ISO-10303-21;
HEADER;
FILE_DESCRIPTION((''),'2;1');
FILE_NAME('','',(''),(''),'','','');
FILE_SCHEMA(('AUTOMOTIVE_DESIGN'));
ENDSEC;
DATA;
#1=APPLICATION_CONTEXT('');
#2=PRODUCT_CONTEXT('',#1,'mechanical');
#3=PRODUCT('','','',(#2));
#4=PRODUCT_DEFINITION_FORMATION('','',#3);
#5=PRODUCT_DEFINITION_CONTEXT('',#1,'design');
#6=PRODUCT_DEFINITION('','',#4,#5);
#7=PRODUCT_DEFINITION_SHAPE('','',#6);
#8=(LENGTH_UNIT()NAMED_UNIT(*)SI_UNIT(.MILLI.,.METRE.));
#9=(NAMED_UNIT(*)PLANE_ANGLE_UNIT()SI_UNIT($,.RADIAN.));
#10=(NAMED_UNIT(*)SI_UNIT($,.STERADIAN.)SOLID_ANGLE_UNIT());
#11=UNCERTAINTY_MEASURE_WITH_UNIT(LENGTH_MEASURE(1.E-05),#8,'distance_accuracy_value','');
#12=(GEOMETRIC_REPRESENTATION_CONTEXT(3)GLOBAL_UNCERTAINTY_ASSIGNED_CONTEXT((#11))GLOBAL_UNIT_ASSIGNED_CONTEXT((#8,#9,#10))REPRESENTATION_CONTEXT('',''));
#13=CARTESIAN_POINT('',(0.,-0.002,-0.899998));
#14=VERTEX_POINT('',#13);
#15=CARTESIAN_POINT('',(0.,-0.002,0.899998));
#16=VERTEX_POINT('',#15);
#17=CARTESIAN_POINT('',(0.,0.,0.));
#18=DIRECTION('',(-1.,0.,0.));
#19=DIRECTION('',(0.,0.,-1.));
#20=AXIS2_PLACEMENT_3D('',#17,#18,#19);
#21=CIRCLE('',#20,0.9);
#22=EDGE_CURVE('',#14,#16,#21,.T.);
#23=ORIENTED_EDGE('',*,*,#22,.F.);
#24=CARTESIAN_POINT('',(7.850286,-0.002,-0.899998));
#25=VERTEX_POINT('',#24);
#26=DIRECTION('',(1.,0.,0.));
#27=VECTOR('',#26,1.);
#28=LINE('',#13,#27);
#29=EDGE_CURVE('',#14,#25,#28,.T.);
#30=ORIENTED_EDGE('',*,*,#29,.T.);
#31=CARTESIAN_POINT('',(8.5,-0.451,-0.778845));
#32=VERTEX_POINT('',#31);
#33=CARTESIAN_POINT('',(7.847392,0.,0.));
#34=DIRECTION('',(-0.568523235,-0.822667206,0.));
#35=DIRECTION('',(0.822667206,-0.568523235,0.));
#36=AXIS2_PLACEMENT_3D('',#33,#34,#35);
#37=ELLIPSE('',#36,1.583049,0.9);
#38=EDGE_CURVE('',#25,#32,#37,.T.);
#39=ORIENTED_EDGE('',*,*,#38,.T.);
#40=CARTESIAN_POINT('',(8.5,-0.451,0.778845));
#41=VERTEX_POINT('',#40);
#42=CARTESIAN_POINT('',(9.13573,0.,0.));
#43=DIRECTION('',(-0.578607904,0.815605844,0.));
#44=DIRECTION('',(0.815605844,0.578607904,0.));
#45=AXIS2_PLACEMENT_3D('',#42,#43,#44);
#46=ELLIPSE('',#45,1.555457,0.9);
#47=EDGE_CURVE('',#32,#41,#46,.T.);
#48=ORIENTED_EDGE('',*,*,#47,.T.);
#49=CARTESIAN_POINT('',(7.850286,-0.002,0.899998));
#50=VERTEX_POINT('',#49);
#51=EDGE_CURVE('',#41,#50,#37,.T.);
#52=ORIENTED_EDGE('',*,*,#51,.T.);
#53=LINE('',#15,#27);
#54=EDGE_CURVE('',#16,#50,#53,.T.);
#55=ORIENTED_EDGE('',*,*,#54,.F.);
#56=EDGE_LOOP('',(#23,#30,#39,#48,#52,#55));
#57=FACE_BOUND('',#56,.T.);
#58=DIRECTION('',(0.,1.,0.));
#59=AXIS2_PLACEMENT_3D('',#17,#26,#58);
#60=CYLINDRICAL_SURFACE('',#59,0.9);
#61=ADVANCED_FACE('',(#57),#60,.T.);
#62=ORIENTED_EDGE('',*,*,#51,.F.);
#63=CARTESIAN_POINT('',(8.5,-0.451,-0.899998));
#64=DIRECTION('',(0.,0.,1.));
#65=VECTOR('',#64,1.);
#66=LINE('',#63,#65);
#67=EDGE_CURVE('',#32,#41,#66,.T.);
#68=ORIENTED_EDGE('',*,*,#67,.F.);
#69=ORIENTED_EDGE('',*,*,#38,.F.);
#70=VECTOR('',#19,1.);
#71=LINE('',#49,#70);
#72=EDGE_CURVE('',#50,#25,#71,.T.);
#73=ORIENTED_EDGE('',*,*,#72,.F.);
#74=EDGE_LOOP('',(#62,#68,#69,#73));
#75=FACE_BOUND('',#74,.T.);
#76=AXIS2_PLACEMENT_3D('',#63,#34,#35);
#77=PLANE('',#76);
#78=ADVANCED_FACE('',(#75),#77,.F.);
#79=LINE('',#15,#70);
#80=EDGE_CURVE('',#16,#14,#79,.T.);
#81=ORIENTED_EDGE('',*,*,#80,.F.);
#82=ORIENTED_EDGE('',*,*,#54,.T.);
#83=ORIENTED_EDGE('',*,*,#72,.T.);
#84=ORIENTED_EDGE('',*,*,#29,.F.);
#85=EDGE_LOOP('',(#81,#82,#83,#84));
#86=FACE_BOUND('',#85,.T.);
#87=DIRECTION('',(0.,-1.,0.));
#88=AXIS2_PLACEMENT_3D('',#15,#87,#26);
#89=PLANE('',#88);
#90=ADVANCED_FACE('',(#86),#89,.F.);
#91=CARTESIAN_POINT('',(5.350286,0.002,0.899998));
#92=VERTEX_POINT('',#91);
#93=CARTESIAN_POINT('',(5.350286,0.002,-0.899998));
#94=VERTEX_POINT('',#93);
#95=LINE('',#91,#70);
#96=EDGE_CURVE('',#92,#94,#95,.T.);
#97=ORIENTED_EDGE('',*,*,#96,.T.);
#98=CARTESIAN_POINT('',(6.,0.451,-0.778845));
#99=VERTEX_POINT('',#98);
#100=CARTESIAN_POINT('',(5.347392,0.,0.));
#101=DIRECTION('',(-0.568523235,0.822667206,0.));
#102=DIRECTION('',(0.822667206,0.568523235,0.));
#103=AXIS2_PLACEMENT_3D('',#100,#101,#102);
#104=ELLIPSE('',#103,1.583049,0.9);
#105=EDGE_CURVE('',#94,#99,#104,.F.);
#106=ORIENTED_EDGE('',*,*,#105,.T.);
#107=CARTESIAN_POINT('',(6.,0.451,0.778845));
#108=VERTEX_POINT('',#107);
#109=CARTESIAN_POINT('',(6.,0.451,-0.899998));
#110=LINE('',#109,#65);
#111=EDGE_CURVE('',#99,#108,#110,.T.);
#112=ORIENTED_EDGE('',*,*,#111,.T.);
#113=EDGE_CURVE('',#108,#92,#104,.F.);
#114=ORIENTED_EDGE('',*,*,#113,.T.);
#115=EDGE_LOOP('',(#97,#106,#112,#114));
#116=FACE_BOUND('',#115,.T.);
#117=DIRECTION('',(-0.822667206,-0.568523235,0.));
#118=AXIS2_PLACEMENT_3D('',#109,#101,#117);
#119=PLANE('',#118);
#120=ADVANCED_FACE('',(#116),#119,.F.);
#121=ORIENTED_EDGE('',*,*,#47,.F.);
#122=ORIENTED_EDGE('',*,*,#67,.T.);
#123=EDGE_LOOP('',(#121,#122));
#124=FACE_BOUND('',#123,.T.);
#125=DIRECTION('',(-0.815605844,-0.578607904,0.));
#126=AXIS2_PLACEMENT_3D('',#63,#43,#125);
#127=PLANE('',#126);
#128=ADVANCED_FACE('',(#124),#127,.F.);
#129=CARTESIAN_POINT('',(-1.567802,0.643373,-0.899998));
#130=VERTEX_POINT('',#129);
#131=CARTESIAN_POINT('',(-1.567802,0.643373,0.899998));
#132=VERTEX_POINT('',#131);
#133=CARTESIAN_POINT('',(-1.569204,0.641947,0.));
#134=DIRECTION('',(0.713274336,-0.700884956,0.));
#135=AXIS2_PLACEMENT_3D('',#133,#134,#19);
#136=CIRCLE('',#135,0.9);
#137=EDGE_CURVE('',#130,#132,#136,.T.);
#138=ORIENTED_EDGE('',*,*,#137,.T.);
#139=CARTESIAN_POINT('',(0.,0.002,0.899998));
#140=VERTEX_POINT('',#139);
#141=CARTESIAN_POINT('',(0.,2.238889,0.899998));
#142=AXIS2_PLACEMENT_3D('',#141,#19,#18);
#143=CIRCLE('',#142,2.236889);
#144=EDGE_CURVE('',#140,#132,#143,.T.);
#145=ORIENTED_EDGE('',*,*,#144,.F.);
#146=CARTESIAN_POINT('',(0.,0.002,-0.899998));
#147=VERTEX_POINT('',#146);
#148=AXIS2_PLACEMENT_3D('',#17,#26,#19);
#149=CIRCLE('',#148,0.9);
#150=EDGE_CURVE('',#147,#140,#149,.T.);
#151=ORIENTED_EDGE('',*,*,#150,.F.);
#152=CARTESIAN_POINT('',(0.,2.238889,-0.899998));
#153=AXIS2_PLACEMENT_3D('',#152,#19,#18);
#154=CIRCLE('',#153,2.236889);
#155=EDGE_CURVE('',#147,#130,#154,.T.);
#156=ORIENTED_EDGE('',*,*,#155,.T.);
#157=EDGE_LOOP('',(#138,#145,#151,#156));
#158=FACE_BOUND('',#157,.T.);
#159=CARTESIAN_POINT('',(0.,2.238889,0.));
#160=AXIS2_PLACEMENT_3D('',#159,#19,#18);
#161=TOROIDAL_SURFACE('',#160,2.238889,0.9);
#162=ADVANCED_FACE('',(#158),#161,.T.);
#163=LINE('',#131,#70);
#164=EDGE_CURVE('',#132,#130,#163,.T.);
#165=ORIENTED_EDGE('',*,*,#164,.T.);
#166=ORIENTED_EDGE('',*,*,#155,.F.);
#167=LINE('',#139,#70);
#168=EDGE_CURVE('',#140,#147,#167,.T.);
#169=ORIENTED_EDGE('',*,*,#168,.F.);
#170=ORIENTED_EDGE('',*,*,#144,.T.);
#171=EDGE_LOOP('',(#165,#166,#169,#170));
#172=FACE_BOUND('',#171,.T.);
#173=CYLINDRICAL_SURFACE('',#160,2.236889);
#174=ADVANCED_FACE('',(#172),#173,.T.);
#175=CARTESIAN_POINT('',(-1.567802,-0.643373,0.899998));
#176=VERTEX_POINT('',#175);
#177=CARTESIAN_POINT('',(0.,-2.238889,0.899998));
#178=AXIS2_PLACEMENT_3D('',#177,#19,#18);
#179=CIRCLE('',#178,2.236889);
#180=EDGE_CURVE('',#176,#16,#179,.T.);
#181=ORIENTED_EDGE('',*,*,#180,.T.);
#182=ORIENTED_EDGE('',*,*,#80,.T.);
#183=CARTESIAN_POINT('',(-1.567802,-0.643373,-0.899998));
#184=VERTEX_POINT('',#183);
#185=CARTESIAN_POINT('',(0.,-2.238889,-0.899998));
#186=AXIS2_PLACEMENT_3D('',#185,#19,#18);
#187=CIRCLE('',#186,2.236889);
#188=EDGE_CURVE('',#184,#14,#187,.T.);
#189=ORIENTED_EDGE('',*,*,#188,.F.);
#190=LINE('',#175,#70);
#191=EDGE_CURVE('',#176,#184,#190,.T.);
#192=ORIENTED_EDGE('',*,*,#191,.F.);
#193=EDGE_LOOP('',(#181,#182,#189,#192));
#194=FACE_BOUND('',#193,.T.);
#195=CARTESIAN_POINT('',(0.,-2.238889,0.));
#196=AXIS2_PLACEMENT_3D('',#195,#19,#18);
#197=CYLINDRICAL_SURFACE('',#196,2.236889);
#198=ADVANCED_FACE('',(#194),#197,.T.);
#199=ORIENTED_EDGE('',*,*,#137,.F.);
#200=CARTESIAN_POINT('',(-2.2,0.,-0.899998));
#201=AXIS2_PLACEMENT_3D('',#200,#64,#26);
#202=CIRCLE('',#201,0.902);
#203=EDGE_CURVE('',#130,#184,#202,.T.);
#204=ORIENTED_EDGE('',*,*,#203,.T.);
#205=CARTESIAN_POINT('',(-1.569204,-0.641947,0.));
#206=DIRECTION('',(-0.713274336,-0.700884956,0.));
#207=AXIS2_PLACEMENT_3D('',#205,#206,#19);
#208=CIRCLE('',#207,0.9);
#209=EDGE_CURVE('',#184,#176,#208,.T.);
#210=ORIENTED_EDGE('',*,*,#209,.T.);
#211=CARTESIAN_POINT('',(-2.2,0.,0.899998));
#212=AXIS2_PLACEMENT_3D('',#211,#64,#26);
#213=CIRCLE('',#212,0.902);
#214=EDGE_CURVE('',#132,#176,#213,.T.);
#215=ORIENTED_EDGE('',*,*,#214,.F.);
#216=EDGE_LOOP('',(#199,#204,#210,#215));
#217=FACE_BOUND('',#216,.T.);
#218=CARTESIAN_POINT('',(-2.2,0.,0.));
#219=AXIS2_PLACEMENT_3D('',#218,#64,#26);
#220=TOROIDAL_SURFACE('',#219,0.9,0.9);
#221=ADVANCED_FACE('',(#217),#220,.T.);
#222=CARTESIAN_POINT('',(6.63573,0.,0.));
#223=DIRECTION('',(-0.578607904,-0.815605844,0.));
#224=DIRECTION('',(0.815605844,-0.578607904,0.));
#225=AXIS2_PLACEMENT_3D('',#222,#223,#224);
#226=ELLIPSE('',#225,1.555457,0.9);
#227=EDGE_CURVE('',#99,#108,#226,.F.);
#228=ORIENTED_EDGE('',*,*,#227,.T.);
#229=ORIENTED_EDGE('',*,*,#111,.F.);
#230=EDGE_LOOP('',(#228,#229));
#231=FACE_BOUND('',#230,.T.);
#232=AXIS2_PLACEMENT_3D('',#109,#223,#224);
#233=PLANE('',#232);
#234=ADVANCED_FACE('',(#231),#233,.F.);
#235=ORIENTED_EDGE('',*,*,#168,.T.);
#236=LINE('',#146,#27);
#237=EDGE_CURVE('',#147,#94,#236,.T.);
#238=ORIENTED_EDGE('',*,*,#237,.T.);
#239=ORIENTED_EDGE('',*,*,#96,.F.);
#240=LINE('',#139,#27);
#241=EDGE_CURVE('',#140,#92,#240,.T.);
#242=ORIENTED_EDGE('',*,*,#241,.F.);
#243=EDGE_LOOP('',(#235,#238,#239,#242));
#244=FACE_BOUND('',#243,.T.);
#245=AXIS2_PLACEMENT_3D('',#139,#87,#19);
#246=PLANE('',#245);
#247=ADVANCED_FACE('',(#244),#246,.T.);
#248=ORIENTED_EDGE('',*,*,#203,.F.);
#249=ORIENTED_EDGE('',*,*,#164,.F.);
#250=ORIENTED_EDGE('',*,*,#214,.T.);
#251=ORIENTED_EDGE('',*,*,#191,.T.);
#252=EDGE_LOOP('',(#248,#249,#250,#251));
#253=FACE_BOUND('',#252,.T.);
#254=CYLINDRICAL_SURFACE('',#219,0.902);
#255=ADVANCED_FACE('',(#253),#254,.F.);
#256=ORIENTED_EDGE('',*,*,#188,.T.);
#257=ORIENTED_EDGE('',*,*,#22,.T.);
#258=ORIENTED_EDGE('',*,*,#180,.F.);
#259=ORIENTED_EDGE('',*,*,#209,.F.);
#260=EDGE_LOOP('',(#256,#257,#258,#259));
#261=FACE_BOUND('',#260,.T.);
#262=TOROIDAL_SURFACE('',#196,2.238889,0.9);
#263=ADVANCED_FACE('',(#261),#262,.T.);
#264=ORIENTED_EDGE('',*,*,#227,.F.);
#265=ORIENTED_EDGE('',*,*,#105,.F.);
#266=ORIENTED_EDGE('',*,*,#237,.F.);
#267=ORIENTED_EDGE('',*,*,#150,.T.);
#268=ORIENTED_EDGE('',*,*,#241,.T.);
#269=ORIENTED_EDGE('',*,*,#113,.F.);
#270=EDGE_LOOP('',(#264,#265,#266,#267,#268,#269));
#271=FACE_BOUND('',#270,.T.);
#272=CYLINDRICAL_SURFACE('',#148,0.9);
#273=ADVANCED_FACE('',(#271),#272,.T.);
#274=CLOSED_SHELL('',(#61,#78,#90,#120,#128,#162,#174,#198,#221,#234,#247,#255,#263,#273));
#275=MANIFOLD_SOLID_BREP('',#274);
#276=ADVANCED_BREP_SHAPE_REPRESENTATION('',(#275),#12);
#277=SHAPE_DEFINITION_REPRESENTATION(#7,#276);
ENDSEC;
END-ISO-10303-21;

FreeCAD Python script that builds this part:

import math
import FreeCAD as App
import Part
import Sketcher

V = App.Vector


def add_polygon(sketch, points):
    """Adds a closed chain of lines whose ends are joined by coincident constraints."""
    first, n = sketch.GeometryCount, len(points)
    for a, b in zip(points, points[1:] + points[:1]):
        sketch.addGeometry(Part.LineSegment(App.Vector(*a, 0), App.Vector(*b, 0)), False)
    for i in range(n):
        sketch.addConstraint(Sketcher.Constraint("Coincident", first + i, 2, first + (i + 1) % n, 1))

doc = App.newDocument("Part")
params = doc.addObject("Spreadsheet::Sheet", "Params")
for row, (alias, value) in enumerate([
    ("sketch1_radius", "0.9 mm"),
    ("sketch2_radius", "1.8 mm"),
    ("sketch2_width", "6 mm"),
    ("sketch2_width2", "8.5 mm"),
    ("sketch3_width", "2.5 mm"),
    ("sketch3_height", "1.82 mm"),
], start=1):
    params.set(f"A{row}", alias)
    params.set(f"B{row}", "=" + value)
    params.setAlias(f"B{row}", alias)

body = doc.addObject("PartDesign::Body", "Body")

# Sketch on YZ plane
sketch1 = body.newObject("Sketcher::SketchObject", "Sketch")
sketch1.AttachmentSupport = (doc.getObject("YZ_Plane"), [""])
sketch1.MapMode = "FlatFace"
sketch1.AttachmentOffset = App.Placement(V(0, 0, 6), App.Rotation())
sketch1.addGeometry(Part.LineSegment(V(0.002, 0.899998, 0), V(0.002, -0.899998, 0)), False)
sketch1.addGeometry(Part.ArcOfCircle(Part.Circle(V(0, 0, 0), V(0, 0, 1), 0.9), math.radians(-89.872676), math.radians(89.872676)), False)
sketch1.addConstraint(Sketcher.Constraint("Coincident", 0, 1, 1, 2))
sketch1.addConstraint(Sketcher.Constraint("Coincident", 1, 1, 0, 2))
sketch1.addConstraint(Sketcher.Constraint("Vertical", 0))
sketch1.addConstraint(Sketcher.Constraint("Coincident", 1, 3, -1, 1))
sketch1.addConstraint(Sketcher.Constraint("Radius", 1, 0.9))
sketch1.addConstraint(Sketcher.Constraint("DistanceX", -1, 1, 0, 1, 0.002))
sketch1.setExpression("Constraints[4]", "Params.sketch1_radius")

# Sketch on XY plane
sketch2 = body.newObject("Sketcher::SketchObject", "Sketch001")
sketch2.AttachmentSupport = (doc.getObject("XY_Plane"), [""])
sketch2.MapMode = "FlatFace"
sketch2.addGeometry(Part.LineSegment(V(6, 0.9, 0), V(0, 0.9, 0)), False)
sketch2.addGeometry(Part.ArcOfCircle(Part.Circle(V(0, 2.238889, 0), V(0, 0, 1), 1.338889), math.radians(-134.498047), math.radians(-90)), False)
sketch2.addGeometry(Part.ArcOfCircle(Part.Circle(V(-2.2, 0, 0), V(0, 0, 1), 1.8), math.radians(45.501953), math.radians(314.498047)), False)
sketch2.addGeometry(Part.ArcOfCircle(Part.Circle(V(0, -2.238889, 0), V(0, 0, 1), 1.338889), math.radians(90), math.radians(134.498047)), False)
sketch2.addGeometry(Part.LineSegment(V(0, -0.9, 0), V(8.5, -0.9, 0)), False)
sketch2.addConstraint(Sketcher.Constraint("Tangent", 0, 2, 1, 2))
sketch2.addConstraint(Sketcher.Constraint("Tangent", 1, 1, 2, 1))
sketch2.addConstraint(Sketcher.Constraint("Tangent", 2, 2, 3, 2))
sketch2.addConstraint(Sketcher.Constraint("Tangent", 3, 1, 4, 1))
sketch2.addConstraint(Sketcher.Constraint("Horizontal", 0))
sketch2.addConstraint(Sketcher.Constraint("Horizontal", 4))
sketch2.addConstraint(Sketcher.Constraint("Equal", 1, 3))
sketch2.addConstraint(Sketcher.Constraint("Symmetric", 1, 3, 3, 3, -1, 1))
sketch2.addConstraint(Sketcher.Constraint("PointOnObject", 1, 3, -2))
sketch2.addConstraint(Sketcher.Constraint("Radius", 2, 1.8))
sketch2.addConstraint(Sketcher.Constraint("DistanceX", 0, 2, 0, 1, 6.0))
sketch2.addConstraint(Sketcher.Constraint("DistanceX", 4, 1, 4, 2, 8.5))
sketch2.addConstraint(Sketcher.Constraint("DistanceX", 2, 3, -1, 1, 2.2))
sketch2.addConstraint(Sketcher.Constraint("DistanceY", -1, 1, 0, 1, 0.9))
sketch2.setExpression("Constraints[9]", "Params.sketch2_radius")
sketch2.setExpression("Constraints[10]", "Params.sketch2_width")
sketch2.setExpression("Constraints[11]", "Params.sketch2_width2")
doc.recompute()

additivepipe = body.newObject("PartDesign::AdditivePipe", "AdditivePipe")
additivepipe.Profile = sketch1
additivepipe.Spine = (sketch2, ["Edge1", "Edge2", "Edge3", "Edge4", "Edge5"])

# Sketch on XY plane
sketch3 = body.newObject("Sketcher::SketchObject", "Sketch002")
sketch3.AttachmentSupport = (doc.getObject("XY_Plane"), [""])
sketch3.MapMode = "FlatFace"
add_polygon(sketch3, [(5.352993, 0.91), (6, 0.451), (5.347392, 0), (7.847392, 0), (8.5, -0.451), (7.852993, -0.91), (8.51, -0.91), (8.51, 0.91)])  # lines 0-7
sketch3.addConstraint(Sketcher.Constraint("Horizontal", 2))
sketch3.addConstraint(Sketcher.Constraint("Horizontal", 5))
sketch3.addConstraint(Sketcher.Constraint("Vertical", 6))
sketch3.addConstraint(Sketcher.Constraint("Horizontal", 7))
sketch3.addConstraint(Sketcher.Constraint("PointOnObject", 1, 2, -1))
sketch3.addConstraint(Sketcher.Constraint("DistanceX", 2, 1, 2, 2, 2.5))
sketch3.addConstraint(Sketcher.Constraint("DistanceX", -1, 1, 0, 2, 6.0))
sketch3.addConstraint(Sketcher.Constraint("DistanceY", 6, 1, 6, 2, 1.82))
sketch3.addConstraint(Sketcher.Constraint("DistanceX", -1, 1, 3, 2, 8.5))
sketch3.addConstraint(Sketcher.Constraint("DistanceX", 7, 2, 4, 2, 2.5))
sketch3.addConstraint(Sketcher.Constraint("DistanceY", 4, 2, -1, 1, 0.91))
sketch3.addConstraint(Sketcher.Constraint("DistanceX", -1, 1, 5, 2, 8.51))
sketch3.addConstraint(Sketcher.Constraint("DistanceY", -1, 1, 0, 2, 0.451))
sketch3.addConstraint(Sketcher.Constraint("DistanceY", 3, 2, -1, 1, 0.451))
sketch3.addConstraint(Sketcher.Constraint("DistanceX", 2, 2, 4, 2, 0.005602))
sketch3.addConstraint(Sketcher.Constraint("DistanceX", 5, 1, 5, 2, 0.657007))
sketch3.setExpression("Constraints[13]", "Params.sketch3_width")
sketch3.setExpression("Constraints[15]", "Params.sketch3_height")
pocket1 = body.newObject("PartDesign::Pocket", "Pocket")
pocket1.Profile = sketch3
pocket1.Type = "ThroughAll"
pocket1.Midplane = True

doc.recompute()
